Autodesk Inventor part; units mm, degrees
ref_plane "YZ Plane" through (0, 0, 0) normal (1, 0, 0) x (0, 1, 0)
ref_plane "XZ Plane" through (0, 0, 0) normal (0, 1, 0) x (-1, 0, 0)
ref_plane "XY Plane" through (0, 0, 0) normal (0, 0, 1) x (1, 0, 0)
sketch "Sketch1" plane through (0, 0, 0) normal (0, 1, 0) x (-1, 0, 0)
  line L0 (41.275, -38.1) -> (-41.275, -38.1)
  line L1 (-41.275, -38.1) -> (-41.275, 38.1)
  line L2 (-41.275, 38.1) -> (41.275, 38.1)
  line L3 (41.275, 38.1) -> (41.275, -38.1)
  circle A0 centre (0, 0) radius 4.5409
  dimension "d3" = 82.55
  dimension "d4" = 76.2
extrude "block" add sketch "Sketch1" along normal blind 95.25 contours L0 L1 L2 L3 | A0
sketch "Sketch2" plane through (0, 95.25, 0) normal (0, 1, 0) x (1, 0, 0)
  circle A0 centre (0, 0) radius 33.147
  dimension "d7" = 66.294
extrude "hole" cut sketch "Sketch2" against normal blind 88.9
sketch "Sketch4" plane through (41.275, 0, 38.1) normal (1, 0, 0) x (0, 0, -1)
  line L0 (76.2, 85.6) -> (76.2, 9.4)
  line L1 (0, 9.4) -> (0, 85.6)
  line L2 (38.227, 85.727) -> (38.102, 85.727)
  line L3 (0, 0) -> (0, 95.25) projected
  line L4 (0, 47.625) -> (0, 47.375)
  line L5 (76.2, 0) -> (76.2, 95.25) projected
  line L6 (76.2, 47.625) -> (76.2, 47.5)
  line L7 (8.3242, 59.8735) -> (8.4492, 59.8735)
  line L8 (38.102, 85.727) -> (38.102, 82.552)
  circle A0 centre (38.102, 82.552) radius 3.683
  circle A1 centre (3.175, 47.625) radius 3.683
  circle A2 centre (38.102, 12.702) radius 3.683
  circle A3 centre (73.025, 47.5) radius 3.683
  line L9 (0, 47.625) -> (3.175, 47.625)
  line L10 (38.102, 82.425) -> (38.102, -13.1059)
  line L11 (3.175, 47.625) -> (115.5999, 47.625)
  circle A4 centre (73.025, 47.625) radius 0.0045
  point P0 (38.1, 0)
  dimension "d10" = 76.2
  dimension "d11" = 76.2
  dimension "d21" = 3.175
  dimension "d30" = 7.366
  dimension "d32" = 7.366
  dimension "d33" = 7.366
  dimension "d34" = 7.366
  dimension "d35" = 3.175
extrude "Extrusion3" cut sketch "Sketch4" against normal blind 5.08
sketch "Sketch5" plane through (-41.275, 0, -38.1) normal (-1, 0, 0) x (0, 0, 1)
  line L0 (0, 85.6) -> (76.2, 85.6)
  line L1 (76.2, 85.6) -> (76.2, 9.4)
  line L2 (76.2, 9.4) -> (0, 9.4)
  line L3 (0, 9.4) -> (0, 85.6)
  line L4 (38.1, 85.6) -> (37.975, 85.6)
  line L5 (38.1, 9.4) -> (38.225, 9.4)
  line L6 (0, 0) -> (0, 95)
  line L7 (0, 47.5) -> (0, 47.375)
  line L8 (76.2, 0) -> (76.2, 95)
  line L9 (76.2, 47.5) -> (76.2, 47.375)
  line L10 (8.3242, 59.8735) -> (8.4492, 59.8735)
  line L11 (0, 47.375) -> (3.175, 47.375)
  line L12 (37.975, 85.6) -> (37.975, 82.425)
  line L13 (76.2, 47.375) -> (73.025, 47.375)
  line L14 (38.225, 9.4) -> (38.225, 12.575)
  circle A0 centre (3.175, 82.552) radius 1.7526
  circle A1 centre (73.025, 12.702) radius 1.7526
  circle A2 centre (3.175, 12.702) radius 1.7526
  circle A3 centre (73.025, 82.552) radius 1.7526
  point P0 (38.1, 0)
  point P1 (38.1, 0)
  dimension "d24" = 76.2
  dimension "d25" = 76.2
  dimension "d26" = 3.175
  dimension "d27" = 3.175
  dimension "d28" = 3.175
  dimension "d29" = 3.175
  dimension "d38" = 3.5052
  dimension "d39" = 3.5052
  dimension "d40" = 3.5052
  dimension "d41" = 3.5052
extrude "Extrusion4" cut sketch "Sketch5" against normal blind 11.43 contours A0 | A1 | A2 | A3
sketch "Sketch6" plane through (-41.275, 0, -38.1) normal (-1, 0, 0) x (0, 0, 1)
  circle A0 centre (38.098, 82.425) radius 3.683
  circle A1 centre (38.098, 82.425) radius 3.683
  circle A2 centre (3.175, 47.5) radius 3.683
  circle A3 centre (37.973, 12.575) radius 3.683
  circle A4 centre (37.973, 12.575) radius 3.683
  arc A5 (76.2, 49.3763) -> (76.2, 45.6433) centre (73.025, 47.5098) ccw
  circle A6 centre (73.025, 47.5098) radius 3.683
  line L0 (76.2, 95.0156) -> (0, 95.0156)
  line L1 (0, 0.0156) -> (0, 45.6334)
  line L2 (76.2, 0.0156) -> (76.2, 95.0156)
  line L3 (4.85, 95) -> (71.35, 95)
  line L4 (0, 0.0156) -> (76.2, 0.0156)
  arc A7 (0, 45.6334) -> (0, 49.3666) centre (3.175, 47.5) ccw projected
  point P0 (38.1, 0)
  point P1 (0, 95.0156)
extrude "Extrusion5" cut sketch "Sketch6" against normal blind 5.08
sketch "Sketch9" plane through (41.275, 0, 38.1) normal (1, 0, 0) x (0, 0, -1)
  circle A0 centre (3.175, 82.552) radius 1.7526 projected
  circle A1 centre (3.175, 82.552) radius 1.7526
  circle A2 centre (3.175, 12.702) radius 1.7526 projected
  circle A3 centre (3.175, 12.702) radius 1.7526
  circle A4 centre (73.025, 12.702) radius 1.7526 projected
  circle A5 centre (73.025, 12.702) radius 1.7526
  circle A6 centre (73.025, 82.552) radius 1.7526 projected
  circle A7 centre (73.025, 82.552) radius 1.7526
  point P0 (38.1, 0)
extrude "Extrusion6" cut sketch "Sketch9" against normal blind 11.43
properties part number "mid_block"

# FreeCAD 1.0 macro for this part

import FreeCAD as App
import Part
import Sketcher

V = App.Vector
Q = App.Units.Quantity


def add_polygon(sketch, points):
    """Adds a closed chain of lines whose ends are joined by coincident constraints."""
    first, n = sketch.GeometryCount, len(points)
    for a, b in zip(points, points[1:] + points[:1]):
        sketch.addGeometry(Part.LineSegment(App.Vector(*a, 0), App.Vector(*b, 0)), False)
    for i in range(n):
        sketch.addConstraint(Sketcher.Constraint("Coincident", first + i, 2, first + (i + 1) % n, 1))

doc = App.newDocument("Part")
body = doc.addObject("PartDesign::Body", "Body")

sketch1 = body.newObject("Sketcher::SketchObject", "Sketch")
sketch1.AttachmentSupport = (doc.getObject("XZ_Plane"), [""])
sketch1.MapMode = "FlatFace"
add_polygon(sketch1, [(41.275, -38.1), (-41.275, -38.1), (-41.275, 38.1), (41.275, 38.1)])
sketch1.addConstraint([
    Sketcher.Constraint("Horizontal", 0),
    Sketcher.Constraint("Vertical", 1),
    Sketcher.Constraint("Horizontal", 2),
    Sketcher.Constraint("Vertical", 3),
    Sketcher.Constraint("Symmetric", 0, 2, 2, 2, -1, 1),
    Sketcher.Constraint("DistanceY", 1, 1, 1, 2, Q("3 in")),
    Sketcher.Constraint("DistanceX", 0, 2, 0, 1, Q("3.25 in")),
])
pad1 = body.newObject("PartDesign::Pad", "Pad")
pad1.Profile = sketch1
pad1.Length = Q("3.75 in")
pad1.Reversed = True

sketch2 = body.newObject("Sketcher::SketchObject", "Sketch001")
sketch2.AttachmentSupport = (doc.getObject("XZ_Plane"), [""])
sketch2.MapMode = "FlatFace"
sketch2.AttachmentOffset = App.Placement(V(0, 0, -3.75 * 25.4), App.Rotation())
sketch2.addGeometry(Part.Circle(V(0, 0, 0), V(0, 0, 1), 33.147), False)
sketch2.addConstraint([
    Sketcher.Constraint("Coincident", 0, 3, -1, 1),
    Sketcher.Constraint("Diameter", 0, Q("2.61 in")),
])
pocket1 = body.newObject("PartDesign::Pocket", "Pocket")
pocket1.Profile = sketch2
pocket1.Length = Q("3.5 in")
pocket1.Reversed = True

sketch3 = body.newObject("Sketcher::SketchObject", "Sketch002")
sketch3.AttachmentSupport = (doc.getObject("YZ_Plane"), [""])
sketch3.MapMode = "FlatFace"
sketch3.AttachmentOffset = App.Placement(V(0, 0, 1.625 * 25.4), App.Rotation())
sketch3.addGeometry([
    Part.Circle(V(47.5, -34.925, 0), V(0, 0, 1), 3.683),
    Part.Circle(V(12.702, -0.002, 0), V(0, 0, 1), 3.683),
    Part.Circle(V(47.625, 34.925, 0), V(0, 0, 1), 3.683),
    Part.Circle(V(82.552, -0.002, 0), V(0, 0, 1), 3.683),
], False)
sketch3.addConstraint([
    Sketcher.Constraint("Equal", 0, 1),
    Sketcher.Constraint("Equal", 1, 2),
    Sketcher.Constraint("Equal", 2, 3),
    Sketcher.Constraint("Horizontal", 1, 3, 3, 3),
    Sketcher.Constraint("Diameter", 0, Q("0.29 in")),
    Sketcher.Constraint("DistanceX", 1, 3, 0, 3, Q("1.37 in")),
    Sketcher.Constraint("DistanceY", 0, 3, 2, 3, Q("2.75 in")),
    Sketcher.Constraint("DistanceX", 0, 3, 3, 3, Q("1.38 in")),
    Sketcher.Constraint("DistanceY", 0, 3, -1, 1, Q("1.375 in")),
    Sketcher.Constraint("DistanceX", -1, 1, 2, 3, Q("1.875 in")),
    Sketcher.Constraint("DistanceX", -1, 1, 0, 3, 47.5),
    Sketcher.Constraint("DistanceY", 1, 3, -1, 1, 0.002),
])
pocket2 = body.newObject("PartDesign::Pocket", "Pocket001")
pocket2.Profile = sketch3
pocket2.Length = Q("0.2 in")

sketch4 = body.newObject("Sketcher::SketchObject", "Sketch003")
sketch4.AttachmentSupport = (doc.getObject("YZ_Plane"), [""])
sketch4.MapMode = "FlatFace"
sketch4.AttachmentOffset = App.Placement(V(0, 0, -1.625 * 25.4), App.Rotation())
sketch4.addGeometry([
    Part.Circle(V(82.552, -34.925, 0), V(0, 0, 1), 1.7526),
    Part.Circle(V(12.702, 34.925, 0), V(0, 0, 1), 1.7526),
    Part.Circle(V(12.702, -34.925, 0), V(0, 0, 1), 1.7526),
    Part.Circle(V(82.552, 34.925, 0), V(0, 0, 1), 1.7526),
], False)
sketch4.addConstraint([
    Sketcher.Constraint("Equal", 0, 1),
    Sketcher.Constraint("Equal", 1, 2),
    Sketcher.Constraint("Equal", 2, 3),
    Sketcher.Constraint("Symmetric", 1, 3, 2, 3, -1),
    Sketcher.Constraint("Symmetric", 0, 3, 3, 3, -1),
    Sketcher.Constraint("Horizontal", 0, 3, 2, 3),
    Sketcher.Constraint("Diameter", 0, Q("0.138 in")),
    Sketcher.Constraint("DistanceX", 1, 3, 0, 3, Q("2.75 in")),
    Sketcher.Constraint("DistanceY", 0, 3, 1, 3, Q("2.75 in")),
    Sketcher.Constraint("DistanceX", -1, 1, 0, 3, 82.552),
])
pocket3 = body.newObject("PartDesign::Pocket", "Pocket002")
pocket3.Profile = sketch4
pocket3.Length = Q("0.45 in")
pocket3.Reversed = True

sketch5 = body.newObject("Sketcher::SketchObject", "Sketch004")
sketch5.AttachmentSupport = (doc.getObject("YZ_Plane"), [""])
sketch5.MapMode = "FlatFace"
sketch5.AttachmentOffset = App.Placement(V(0, 0, -1.625 * 25.4), App.Rotation())
sketch5.addGeometry([
    Part.Circle(V(82.425, -0.002, 0), V(0, 0, 1), 3.683),
    Part.Circle(V(47.5, -34.925, 0), V(0, 0, 1), 3.683),
    Part.Circle(V(47.5098, 34.925, 0), V(0, 0, 1), 3.683),
    Part.Circle(V(12.575, -0.127, 0), V(0, 0, 1), 3.683),
], False)
sketch5.addConstraint([
    Sketcher.Constraint("Equal", 0, 1),
    Sketcher.Constraint("Equal", 1, 2),
    Sketcher.Constraint("Equal", 2, 3),
    Sketcher.Constraint("Diameter", 0, Q("0.29 in")),
    Sketcher.Constraint("DistanceY", 1, 3, 2, 3, Q("2.75 in")),
    Sketcher.Constraint("DistanceY", 1, 3, 3, 3, Q("1.37 in")),
    Sketcher.Constraint("DistanceX", 3, 3, 0, 3, Q("2.75 in")),
    Sketcher.Constraint("DistanceY", 1, 3, -1, 1, Q("1.375 in")),
    Sketcher.Constraint("DistanceX", 1, 3, 0, 3, Q("1.375 in")),
    Sketcher.Constraint("DistanceX", -1, 1, 0, 3, 82.425),
    Sketcher.Constraint("DistanceY", 0, 3, -1, 1, 0.002),
    Sketcher.Constraint("DistanceX", -1, 1, 2, 3, 47.5098),
])
pocket4 = body.newObject("PartDesign::Pocket", "Pocket003")
pocket4.Profile = sketch5
pocket4.Length = Q("0.2 in")
pocket4.Reversed = True

sketch6 = body.newObject("Sketcher::SketchObject", "Sketch005")
sketch6.AttachmentSupport = (doc.getObject("YZ_Plane"), [""])
sketch6.MapMode = "FlatFace"
sketch6.AttachmentOffset = App.Placement(V(0, 0, 1.625 * 25.4), App.Rotation())
sketch6.addGeometry([
    Part.Circle(V(82.552, 34.925, 0), V(0, 0, 1), 1.7526),
    Part.Circle(V(12.702, 34.925, 0), V(0, 0, 1), 1.7526),
    Part.Circle(V(12.702, -34.925, 0), V(0, 0, 1), 1.7526),
    Part.Circle(V(82.552, -34.925, 0), V(0, 0, 1), 1.7526),
], False)
sketch6.addConstraint([
    Sketcher.Constraint("Equal", 0, 1),
    Sketcher.Constraint("Equal", 1, 2),
    Sketcher.Constraint("Equal", 2, 3),
    Sketcher.Constraint("Symmetric", 1, 3, 2, 3, -1),
    Sketcher.Constraint("Symmetric", 0, 3, 3, 3, -1),
    Sketcher.Constraint("Horizontal", 0, 3, 1, 3),
    Sketcher.Constraint("Diameter", 0, Q("0.138 in")),
    Sketcher.Constraint("DistanceX", 1, 3, 0, 3, Q("2.75 in")),
    Sketcher.Constraint("DistanceY", 2, 3, 1, 3, Q("2.75 in")),
    Sketcher.Constraint("DistanceX", -1, 1, 0, 3, 82.552),
])
pocket5 = body.newObject("PartDesign::Pocket", "Pocket004")
pocket5.Profile = sketch6
pocket5.Length = Q("0.45 in")

doc.recompute()
